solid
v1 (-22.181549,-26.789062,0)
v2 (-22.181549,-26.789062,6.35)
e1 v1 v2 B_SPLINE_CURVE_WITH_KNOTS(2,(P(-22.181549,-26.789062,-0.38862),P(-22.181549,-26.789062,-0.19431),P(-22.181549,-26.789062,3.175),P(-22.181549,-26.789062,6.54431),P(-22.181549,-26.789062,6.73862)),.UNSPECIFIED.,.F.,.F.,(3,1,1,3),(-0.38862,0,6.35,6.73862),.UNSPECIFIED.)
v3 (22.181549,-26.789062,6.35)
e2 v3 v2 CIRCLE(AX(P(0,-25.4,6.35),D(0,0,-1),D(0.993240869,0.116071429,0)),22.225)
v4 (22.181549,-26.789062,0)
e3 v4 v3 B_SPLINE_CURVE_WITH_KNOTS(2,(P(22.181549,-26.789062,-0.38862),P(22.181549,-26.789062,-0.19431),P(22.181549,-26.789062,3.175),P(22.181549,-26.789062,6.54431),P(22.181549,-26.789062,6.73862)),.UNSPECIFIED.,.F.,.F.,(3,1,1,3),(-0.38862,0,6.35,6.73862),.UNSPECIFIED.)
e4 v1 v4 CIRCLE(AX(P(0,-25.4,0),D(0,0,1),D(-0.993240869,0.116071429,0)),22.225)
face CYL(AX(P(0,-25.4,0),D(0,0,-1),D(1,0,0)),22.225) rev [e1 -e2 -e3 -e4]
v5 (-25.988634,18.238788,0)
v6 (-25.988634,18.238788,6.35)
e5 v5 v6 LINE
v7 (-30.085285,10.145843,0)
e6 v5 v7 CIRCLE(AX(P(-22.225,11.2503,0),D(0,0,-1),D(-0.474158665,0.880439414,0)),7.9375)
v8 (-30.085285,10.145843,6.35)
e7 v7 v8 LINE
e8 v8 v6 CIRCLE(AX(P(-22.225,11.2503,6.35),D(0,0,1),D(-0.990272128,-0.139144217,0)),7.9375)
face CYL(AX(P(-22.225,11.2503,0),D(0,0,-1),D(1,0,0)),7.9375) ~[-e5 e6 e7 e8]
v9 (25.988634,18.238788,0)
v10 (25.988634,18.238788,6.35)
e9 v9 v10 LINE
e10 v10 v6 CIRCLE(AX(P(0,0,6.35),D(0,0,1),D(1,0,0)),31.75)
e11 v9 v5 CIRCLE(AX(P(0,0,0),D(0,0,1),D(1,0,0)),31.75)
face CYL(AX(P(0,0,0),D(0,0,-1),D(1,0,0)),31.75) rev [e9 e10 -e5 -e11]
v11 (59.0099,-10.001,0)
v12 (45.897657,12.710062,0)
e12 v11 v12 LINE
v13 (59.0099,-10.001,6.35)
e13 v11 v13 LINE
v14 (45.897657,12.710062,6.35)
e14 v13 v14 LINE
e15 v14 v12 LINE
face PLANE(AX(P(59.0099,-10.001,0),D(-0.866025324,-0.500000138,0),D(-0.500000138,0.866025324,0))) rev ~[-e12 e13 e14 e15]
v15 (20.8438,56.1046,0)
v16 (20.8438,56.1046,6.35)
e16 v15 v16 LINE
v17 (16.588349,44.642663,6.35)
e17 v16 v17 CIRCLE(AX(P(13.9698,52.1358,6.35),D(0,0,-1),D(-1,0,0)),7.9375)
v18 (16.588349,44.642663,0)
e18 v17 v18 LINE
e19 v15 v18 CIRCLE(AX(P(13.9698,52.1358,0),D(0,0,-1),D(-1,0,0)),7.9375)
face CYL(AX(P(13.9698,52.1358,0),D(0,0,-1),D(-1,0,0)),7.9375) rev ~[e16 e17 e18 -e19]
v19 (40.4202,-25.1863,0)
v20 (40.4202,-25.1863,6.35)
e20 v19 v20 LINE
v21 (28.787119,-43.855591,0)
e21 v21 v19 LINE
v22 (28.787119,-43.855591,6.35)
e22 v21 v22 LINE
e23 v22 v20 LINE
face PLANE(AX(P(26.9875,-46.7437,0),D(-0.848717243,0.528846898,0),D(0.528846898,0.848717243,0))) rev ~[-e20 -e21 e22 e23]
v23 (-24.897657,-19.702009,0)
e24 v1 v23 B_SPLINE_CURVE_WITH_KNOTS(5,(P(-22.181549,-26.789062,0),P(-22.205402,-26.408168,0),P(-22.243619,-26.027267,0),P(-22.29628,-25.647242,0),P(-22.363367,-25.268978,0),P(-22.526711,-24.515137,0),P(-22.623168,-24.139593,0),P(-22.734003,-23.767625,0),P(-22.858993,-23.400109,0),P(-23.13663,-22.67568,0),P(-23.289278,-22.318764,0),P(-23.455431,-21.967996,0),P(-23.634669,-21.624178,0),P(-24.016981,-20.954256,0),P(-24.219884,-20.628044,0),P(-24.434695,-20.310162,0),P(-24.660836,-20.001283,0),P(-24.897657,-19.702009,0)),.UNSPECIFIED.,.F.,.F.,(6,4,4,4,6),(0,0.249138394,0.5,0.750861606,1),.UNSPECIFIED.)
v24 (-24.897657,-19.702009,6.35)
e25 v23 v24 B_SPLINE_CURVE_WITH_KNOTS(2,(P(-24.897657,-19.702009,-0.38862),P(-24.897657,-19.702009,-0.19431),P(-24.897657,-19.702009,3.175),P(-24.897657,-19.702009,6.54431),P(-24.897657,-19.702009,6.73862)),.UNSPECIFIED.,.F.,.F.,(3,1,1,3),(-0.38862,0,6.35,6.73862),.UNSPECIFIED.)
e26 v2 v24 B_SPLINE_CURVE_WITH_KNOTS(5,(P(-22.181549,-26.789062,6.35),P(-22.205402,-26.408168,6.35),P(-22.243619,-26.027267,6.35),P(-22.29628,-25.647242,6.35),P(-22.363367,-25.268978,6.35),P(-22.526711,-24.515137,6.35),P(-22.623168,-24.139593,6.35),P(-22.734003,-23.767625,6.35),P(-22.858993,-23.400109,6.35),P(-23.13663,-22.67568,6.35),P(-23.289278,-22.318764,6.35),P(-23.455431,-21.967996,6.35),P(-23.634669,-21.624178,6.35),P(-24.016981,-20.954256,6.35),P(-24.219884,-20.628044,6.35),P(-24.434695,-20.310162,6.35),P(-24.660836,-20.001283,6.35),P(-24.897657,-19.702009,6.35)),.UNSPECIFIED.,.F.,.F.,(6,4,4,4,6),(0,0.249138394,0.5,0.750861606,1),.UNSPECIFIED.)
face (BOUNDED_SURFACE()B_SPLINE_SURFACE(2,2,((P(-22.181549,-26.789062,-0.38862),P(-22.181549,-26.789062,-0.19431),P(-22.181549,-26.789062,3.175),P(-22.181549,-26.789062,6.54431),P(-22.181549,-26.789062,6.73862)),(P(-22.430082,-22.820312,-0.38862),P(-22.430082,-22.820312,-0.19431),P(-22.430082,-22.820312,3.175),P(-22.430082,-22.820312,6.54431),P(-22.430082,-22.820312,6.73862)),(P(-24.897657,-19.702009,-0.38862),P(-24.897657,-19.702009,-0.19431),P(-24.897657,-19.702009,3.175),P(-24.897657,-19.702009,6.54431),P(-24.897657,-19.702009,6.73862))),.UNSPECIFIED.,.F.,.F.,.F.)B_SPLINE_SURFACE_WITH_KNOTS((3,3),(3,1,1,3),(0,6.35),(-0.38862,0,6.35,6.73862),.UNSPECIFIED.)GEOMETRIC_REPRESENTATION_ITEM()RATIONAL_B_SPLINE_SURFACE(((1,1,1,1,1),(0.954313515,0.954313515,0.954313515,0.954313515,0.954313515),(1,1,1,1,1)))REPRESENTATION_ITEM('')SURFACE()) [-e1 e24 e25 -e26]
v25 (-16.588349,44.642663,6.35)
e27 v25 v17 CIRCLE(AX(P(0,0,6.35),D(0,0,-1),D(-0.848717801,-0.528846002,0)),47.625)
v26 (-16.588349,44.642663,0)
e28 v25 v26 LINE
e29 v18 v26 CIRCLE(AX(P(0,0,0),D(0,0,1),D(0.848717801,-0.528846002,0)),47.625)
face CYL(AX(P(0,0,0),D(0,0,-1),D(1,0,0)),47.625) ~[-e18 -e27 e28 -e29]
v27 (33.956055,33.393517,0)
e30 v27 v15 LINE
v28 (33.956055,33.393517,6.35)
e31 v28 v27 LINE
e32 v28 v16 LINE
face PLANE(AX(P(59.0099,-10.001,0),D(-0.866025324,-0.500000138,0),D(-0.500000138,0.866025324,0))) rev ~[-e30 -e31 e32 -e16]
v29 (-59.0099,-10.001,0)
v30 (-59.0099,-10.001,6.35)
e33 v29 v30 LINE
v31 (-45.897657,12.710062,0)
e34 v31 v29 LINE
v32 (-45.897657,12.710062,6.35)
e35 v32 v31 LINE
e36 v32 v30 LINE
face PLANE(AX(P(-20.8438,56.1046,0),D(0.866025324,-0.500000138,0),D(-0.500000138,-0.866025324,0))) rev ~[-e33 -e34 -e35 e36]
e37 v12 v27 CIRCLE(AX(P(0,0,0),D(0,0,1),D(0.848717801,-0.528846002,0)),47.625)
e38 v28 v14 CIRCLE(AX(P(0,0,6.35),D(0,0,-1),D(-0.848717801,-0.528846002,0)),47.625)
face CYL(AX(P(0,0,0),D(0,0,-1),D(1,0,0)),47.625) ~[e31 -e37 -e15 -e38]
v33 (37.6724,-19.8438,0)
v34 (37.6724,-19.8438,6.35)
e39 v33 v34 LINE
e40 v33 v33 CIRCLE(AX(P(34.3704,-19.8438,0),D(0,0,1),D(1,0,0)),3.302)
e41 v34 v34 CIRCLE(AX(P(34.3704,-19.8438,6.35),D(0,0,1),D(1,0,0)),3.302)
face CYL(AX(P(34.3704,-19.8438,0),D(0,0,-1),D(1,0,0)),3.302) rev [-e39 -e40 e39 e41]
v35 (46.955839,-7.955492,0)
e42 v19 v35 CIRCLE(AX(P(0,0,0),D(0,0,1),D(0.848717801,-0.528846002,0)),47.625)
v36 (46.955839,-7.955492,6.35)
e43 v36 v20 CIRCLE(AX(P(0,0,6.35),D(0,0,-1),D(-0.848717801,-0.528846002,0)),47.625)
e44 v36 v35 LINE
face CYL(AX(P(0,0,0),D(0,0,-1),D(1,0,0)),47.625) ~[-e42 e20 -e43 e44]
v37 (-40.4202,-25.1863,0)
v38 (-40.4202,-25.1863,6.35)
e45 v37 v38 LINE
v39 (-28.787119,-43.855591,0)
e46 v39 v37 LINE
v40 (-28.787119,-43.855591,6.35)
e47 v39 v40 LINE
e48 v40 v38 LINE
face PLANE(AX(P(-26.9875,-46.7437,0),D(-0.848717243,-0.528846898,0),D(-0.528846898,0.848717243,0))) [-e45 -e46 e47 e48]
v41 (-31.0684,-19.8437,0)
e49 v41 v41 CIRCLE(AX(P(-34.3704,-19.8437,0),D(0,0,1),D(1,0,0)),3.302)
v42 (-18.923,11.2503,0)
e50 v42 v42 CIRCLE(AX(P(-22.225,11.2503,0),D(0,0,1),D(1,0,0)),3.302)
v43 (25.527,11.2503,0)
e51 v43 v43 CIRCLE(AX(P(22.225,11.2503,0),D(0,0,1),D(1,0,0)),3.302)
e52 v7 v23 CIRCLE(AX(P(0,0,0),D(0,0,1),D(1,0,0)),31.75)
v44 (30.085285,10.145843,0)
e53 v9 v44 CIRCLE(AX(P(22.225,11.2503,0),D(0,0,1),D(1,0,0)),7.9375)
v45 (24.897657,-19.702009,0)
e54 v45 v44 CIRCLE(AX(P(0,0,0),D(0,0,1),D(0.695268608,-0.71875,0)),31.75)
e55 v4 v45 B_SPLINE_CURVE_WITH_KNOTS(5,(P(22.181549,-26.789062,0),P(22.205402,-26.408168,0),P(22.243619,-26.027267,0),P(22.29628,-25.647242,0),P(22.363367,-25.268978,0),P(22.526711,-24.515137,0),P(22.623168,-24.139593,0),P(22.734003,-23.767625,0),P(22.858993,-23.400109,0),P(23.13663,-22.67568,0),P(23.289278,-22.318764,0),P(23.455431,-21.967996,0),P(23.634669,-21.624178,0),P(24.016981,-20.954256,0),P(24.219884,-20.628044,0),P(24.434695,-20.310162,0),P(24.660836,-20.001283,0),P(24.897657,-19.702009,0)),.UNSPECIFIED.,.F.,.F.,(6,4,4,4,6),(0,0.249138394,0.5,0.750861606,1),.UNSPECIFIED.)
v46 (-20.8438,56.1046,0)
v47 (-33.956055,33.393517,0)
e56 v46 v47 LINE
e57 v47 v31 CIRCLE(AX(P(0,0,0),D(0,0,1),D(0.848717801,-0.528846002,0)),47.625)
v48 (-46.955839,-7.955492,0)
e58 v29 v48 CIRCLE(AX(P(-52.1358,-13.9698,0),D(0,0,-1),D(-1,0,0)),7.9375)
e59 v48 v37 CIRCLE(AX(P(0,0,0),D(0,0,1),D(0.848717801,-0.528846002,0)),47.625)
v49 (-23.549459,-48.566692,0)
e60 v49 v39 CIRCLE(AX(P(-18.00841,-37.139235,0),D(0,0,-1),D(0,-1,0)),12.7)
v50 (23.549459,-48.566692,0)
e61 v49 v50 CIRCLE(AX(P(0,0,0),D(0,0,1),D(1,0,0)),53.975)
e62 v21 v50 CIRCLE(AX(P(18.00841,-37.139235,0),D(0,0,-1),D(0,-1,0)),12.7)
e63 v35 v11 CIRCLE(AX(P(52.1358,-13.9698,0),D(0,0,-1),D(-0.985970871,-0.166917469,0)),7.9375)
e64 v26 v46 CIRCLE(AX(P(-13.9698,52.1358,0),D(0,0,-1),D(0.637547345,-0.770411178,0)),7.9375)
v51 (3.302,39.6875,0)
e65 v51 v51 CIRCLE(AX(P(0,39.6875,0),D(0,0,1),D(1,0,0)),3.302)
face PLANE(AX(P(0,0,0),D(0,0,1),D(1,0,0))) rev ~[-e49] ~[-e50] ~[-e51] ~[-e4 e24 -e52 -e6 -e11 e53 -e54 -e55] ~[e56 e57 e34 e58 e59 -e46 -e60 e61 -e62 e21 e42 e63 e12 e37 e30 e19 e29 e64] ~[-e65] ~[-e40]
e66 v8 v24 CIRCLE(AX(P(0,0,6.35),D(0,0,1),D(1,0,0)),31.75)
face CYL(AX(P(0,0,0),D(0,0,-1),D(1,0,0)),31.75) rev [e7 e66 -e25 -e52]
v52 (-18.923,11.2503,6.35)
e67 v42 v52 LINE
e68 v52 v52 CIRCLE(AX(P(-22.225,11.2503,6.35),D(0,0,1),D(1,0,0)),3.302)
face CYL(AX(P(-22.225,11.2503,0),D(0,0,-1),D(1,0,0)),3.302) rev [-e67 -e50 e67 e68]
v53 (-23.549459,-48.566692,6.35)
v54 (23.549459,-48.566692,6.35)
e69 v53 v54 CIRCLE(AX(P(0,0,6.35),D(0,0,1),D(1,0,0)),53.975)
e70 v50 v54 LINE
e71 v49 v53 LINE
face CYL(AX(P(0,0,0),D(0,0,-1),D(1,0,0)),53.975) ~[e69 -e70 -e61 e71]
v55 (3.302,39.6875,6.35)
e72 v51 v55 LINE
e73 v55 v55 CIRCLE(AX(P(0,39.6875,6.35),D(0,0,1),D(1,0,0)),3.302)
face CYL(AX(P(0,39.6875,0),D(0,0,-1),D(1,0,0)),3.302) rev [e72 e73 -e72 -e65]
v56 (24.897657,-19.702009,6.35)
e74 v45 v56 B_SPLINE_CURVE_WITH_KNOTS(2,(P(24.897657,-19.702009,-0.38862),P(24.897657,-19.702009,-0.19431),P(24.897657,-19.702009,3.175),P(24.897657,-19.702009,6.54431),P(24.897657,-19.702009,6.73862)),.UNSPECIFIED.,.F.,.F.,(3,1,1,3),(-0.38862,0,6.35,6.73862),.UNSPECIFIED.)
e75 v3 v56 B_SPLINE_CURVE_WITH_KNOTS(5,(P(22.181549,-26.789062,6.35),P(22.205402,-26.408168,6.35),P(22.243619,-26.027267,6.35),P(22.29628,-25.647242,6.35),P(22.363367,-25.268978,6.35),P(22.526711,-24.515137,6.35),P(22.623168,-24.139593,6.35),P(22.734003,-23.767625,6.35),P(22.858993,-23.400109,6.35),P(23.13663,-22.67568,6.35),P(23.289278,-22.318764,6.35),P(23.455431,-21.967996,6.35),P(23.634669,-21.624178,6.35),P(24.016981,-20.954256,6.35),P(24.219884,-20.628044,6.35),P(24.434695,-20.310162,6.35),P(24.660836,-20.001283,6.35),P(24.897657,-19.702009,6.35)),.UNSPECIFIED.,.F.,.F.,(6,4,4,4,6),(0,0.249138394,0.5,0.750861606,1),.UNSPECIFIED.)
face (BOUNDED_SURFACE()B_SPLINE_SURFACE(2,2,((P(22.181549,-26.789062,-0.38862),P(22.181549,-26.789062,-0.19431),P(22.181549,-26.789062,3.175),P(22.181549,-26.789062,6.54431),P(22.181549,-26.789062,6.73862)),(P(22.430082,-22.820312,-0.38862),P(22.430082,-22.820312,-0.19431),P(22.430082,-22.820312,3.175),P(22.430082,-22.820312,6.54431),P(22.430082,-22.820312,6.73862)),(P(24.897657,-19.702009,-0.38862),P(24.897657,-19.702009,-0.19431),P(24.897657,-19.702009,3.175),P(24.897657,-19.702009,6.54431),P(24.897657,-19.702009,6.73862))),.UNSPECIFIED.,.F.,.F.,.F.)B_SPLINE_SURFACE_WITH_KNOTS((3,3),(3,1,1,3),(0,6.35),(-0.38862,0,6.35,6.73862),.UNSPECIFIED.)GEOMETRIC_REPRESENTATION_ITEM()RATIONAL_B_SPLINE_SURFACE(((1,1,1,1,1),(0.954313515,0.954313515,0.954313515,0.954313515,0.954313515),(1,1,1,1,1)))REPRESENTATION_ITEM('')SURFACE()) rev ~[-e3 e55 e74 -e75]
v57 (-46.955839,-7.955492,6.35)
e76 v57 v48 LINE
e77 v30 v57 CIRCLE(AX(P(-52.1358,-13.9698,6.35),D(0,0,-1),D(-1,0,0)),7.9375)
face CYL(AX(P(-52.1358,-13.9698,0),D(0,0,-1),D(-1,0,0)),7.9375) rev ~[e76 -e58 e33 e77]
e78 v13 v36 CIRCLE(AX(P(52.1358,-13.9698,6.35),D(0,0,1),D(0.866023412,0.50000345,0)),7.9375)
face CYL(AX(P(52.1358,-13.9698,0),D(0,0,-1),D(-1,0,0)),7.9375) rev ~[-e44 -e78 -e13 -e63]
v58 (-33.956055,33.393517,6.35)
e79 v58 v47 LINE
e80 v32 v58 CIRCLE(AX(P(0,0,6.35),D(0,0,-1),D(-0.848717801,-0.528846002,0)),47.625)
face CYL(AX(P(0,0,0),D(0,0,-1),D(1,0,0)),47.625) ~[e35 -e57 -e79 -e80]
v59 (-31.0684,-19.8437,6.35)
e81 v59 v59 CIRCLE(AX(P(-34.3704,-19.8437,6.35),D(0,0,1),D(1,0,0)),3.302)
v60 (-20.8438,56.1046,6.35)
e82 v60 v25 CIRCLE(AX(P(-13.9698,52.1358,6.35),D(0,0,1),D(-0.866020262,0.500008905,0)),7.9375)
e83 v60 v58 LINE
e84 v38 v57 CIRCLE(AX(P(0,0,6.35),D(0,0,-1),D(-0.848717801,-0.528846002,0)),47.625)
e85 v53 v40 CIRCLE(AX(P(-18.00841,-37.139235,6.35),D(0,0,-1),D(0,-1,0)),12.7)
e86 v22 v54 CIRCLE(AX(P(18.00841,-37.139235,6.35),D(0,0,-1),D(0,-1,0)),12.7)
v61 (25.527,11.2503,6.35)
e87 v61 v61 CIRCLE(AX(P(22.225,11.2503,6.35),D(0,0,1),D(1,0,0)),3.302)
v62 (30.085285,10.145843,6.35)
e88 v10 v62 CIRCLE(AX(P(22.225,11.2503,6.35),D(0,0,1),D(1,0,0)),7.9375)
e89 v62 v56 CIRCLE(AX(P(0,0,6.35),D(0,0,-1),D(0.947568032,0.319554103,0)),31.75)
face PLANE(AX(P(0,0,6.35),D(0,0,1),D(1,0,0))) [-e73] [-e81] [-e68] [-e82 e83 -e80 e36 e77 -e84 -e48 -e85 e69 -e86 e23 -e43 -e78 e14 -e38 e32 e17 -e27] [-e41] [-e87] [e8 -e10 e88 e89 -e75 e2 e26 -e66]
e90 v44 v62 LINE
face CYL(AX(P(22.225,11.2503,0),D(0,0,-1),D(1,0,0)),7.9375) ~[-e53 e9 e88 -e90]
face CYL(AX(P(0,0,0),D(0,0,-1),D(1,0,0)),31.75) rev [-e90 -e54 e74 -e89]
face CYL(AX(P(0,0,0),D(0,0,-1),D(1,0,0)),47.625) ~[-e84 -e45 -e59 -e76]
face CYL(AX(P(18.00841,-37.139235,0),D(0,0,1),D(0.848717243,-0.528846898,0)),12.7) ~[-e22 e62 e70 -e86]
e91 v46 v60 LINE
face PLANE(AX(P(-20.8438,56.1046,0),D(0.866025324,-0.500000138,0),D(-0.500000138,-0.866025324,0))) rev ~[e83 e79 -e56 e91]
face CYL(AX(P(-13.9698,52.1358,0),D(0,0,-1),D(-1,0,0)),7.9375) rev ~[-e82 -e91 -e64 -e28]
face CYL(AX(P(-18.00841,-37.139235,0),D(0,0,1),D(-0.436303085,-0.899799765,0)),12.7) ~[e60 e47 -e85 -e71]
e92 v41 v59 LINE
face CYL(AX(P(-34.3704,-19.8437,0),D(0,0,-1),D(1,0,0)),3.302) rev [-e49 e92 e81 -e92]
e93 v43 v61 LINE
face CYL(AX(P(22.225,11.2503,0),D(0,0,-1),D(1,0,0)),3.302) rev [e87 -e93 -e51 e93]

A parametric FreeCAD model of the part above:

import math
import FreeCAD as App
import Part
import Sketcher
from FreeCAD import Vector
Q = App.Units.Quantity


def edges_at(feature, points):
    """Names of the edges that pass closest to the given points."""
    edges = feature.Shape.Edges
    near = lambda p: min(range(len(edges)), key=lambda i: edges[i].distToShape(Part.Vertex(*p))[0])
    return sorted({f"Edge{near(p) + 1}" for p in points})

doc = App.newDocument("Part")
body = doc.addObject("PartDesign::Body", "Body")

# Sketch on XY plane
sketch1 = body.newObject("Sketcher::SketchObject", "Sketch")
sketch1.AttachmentSupport = (doc.getObject("XY_Plane"), [""])
sketch1.MapMode = "FlatFace"
sketch1.addGeometry([
    Part.ArcOfCircle(Part.Circle(Vector(0, 0, 0), Vector(0, 0, 1), 47.6), math.radians(-32), math.radians(212)),  # 0
    Part.LineSegment(Vector(-40.4, -25.2, 0), Vector(-27, -46.7, 0)),  # 1
    Part.ArcOfCircle(Part.Circle(Vector(0, 0, 0), Vector(0, 0, 1), 54), math.radians(-120), math.radians(-60)),  # 2
    Part.LineSegment(Vector(27, -46.7, 0), Vector(40.4, -25.2, 0)),  # 3
    Part.ArcOfCircle(Part.Circle(Vector(0, 0, 0), Vector(0, 0, 1), 31.8), math.radians(161), math.radians(226)),  # 4
    Part.ArcOfCircle(Part.Circle(Vector(-22.2, 11.3, 0), Vector(0, 0, 1), 7.9), math.radians(-172), math.radians(118)),  # 5
    Part.ArcOfCircle(Part.Circle(Vector(0, 0, 0), Vector(0, 0, 1), 31.8), math.radians(35), math.radians(145)),  # 6
    Part.ArcOfCircle(Part.Circle(Vector(22.2, 11.3, 0), Vector(0, 0, 1), 7.9), math.radians(62), math.radians(352)),  # 7
    Part.ArcOfCircle(Part.Circle(Vector(0, 0, 0), Vector(0, 0, 1), 31.8), math.radians(-46), math.radians(19)),  # 8
    Part.ArcOfCircle(Part.Circle(Vector(0, -25.4, 0), Vector(0, 0, 1), 22.2), math.radians(173), math.radians(367)),  # 9
    Part.Circle(Vector(-34.4, -19.8, 0), Vector(0, 0, 1), 3.3),  # 10
    Part.Circle(Vector(34.4, -19.8, 0), Vector(0, 0, 1), 3.3),  # 11
    Part.Circle(Vector(0, 39.7, 0), Vector(0, 0, 1), 3.3),  # 12
    Part.Circle(Vector(22.2, 11.3, 0), Vector(0, 0, 1), 3.3),  # 13
    Part.Circle(Vector(-22.2, 11.3, 0), Vector(0, 0, 1), 3.3),  # 14
], False)
sketch1.addConstraint([
    Sketcher.Constraint("Tangent", 0, 2, 1, 1),
    Sketcher.Constraint("Coincident", 1, 2, 2, 1),
    Sketcher.Constraint("Coincident", 2, 2, 3, 1),
    Sketcher.Constraint("Tangent", 3, 2, 0, 1),
    Sketcher.Constraint("Coincident", 4, 1, 5, 1),
    Sketcher.Constraint("Coincident", 5, 2, 6, 2),
    Sketcher.Constraint("Coincident", 6, 1, 7, 1),
    Sketcher.Constraint("Coincident", 7, 2, 8, 2),
    Sketcher.Constraint("Coincident", 8, 1, 9, 2),
    Sketcher.Constraint("Coincident", 9, 1, 4, 2),
    Sketcher.Constraint("Coincident", 0, 3, -1, 1),
    Sketcher.Constraint("Coincident", 2, 3, -1, 1),
    Sketcher.Constraint("Coincident", 4, 3, -1, 1),
    Sketcher.Constraint("Coincident", 6, 3, -1, 1),
    Sketcher.Constraint("Coincident", 8, 3, -1, 1),
    Sketcher.Constraint("Coincident", 13, 3, 7, 3),
    Sketcher.Constraint("Coincident", 14, 3, 5, 3),
    Sketcher.Constraint("Equal", 4, 6),
    Sketcher.Constraint("Equal", 5, 7),
    Sketcher.Constraint("Equal", 6, 8),
    Sketcher.Constraint("Equal", 10, 11),
    Sketcher.Constraint("Equal", 11, 12),
    Sketcher.Constraint("Equal", 12, 13),
    Sketcher.Constraint("Equal", 13, 14),
    Sketcher.Constraint("Symmetric", 5, 3, 7, 3, -2),
    Sketcher.Constraint("Symmetric", 10, 3, 11, 3, -2),
    Sketcher.Constraint("PointOnObject", 9, 3, -2),
    Sketcher.Constraint("PointOnObject", 12, 3, -2),
    Sketcher.Constraint("Horizontal", 1, 2, 2, 2),
    Sketcher.Constraint("Diameter", 10, Q("0.26 in")),
    Sketcher.Constraint("Radius", 4, Q("1.25 in")),
    Sketcher.Constraint("Radius", 0, Q("1.875 in")),
    Sketcher.Constraint("Radius", 2, Q("2.125 in")),
    Sketcher.Constraint("Radius", 5, Q("0.3125 in")),
    Sketcher.Constraint("Radius", 9, Q("0.875 in")),
    Sketcher.Constraint("DistanceX", 5, 3, 7, 3, Q("1.75 in")),
    Sketcher.Constraint("DistanceY", 9, 3, -1, 1, Q("1 in")),
    Sketcher.Constraint("DistanceY", 10, 3, -1, 1, Q("0.781248 in")),
    Sketcher.Constraint("DistanceY", -1, 1, 12, 3, Q("1.5625 in")),
    Sketcher.Constraint("DistanceX", 1, 2, -1, 1, Q("1.0625 in")),
    Sketcher.Constraint("DistanceY", 0, 2, 5, 3, Q("1.4345 in")),
    Sketcher.Constraint("DistanceX", 10, 3, 4, 1, Q("0.1687 in")),
])
pad1 = body.newObject("PartDesign::Pad", "Pad")
pad1.Profile = sketch1
pad1.Length = Q("0.25 in")
doc.recompute()

fillet = body.newObject("PartDesign::Fillet", "Fillet")
fillet.Base = (pad1, edges_at(pad1, [
    (-22.075, -22.82, 3.175),
    (22.075, -22.82, 3.175),
    (26.988, -46.744, 3.175),
    (-26.988, -46.744, 3.175),
]))
fillet.Radius = Q("0.5 in")

# Sketch on XY plane
sketch2 = body.newObject("Sketcher::SketchObject", "Sketch001")
sketch2.AttachmentSupport = (doc.getObject("XY_Plane"), [""])
sketch2.MapMode = "FlatFace"
sketch2.addGeometry([
    Part.Circle(Vector(38.2, -38.2, 0), Vector(0, 0, 1), 3.3),  # 0
    Part.Circle(Vector(52.1, -14, 0), Vector(0, 0, 1), 3.3),  # 1
    Part.Circle(Vector(14, 52.1, 0), Vector(0, 0, 1), 3.3),  # 2
    Part.Circle(Vector(-14, 52.1, 0), Vector(0, 0, 1), 3.3),  # 3
    Part.Circle(Vector(-52.1, -14, 0), Vector(0, 0, 1), 3.3),  # 4
    Part.Circle(Vector(-38.2, -38.2, 0), Vector(0, 0, 1), 3.3),  # 5
], False)
sketch2.addConstraint([
    Sketcher.Constraint("Equal", 0, 1),
    Sketcher.Constraint("Equal", 1, 2),
    Sketcher.Constraint("Equal", 2, 3),
    Sketcher.Constraint("Equal", 3, 4),
    Sketcher.Constraint("Equal", 4, 5),
    Sketcher.Constraint("Symmetric", 2, 3, 3, 3, -2),
    Sketcher.Constraint("Symmetric", 1, 3, 4, 3, -2),
    Sketcher.Constraint("Symmetric", 0, 3, 5, 3, -2),
    Sketcher.Constraint("Diameter", 0, Q("0.26 in")),
    Sketcher.Constraint("DistanceY", 1, 3, -1, 1, Q("0.55 in")),
    Sketcher.Constraint("DistanceX", -1, 1, 2, 3, Q("0.55 in")),
    Sketcher.Constraint("DistanceX", 0, 3, 1, 3, Q("0.55 in")),
    Sketcher.Constraint("DistanceX", -1, 1, 0, 3, Q("1.5026 in")),
    Sketcher.Constraint("DistanceY", 0, 3, -1, 1, Q("1.5026 in")),
    Sketcher.Constraint("DistanceY", -1, 1, 2, 3, Q("2.0526 in")),
])
doc.recompute()
hole = body.newObject("PartDesign::Hole", "Hole")
hole.Profile = sketch2
hole.ThreadType = "None"
hole.Diameter = Q("0.26 in")
hole.DepthType = "ThroughAll"
hole.Reversed = True

# Sketch on XY plane
sketch3 = body.newObject("Sketcher::SketchObject", "Sketch002")
sketch3.AttachmentSupport = (doc.getObject("XY_Plane"), [""])
sketch3.MapMode = "FlatFace"
sketch3.addGeometry([
    Part.ArcOfCircle(Part.Circle(Vector(-14, 52, 0), Vector(0, 0, 1), 8), math.radians(150), math.radians(310)),  # 0
    Part.ArcOfCircle(Part.Circle(Vector(56, -32, 0), Vector(0, 0, 1), 102), math.radians(130), math.radians(170)),  # 1
    Part.ArcOfCircle(Part.Circle(Vector(-52, -14, 0), Vector(0, 0, 1), 8), math.radians(-10), math.radians(150)),  # 2
    Part.LineSegment(Vector(-59, -10, 0), Vector(-21, 56, 0)),  # 3
    Part.ArcOfCircle(Part.Circle(Vector(14, 52, 0), Vector(0, 0, 1), 8), math.radians(-130), math.radians(30)),  # 4
    Part.LineSegment(Vector(21, 56, 0), Vector(59, -10, 0)),  # 5
    Part.ArcOfCircle(Part.Circle(Vector(52, -14, 0), Vector(0, 0, 1), 8), math.radians(30), math.radians(190)),  # 6
    Part.ArcOfCircle(Part.Circle(Vector(-56, -32, 0), Vector(0, 0, 1), 102), math.radians(10), math.radians(50)),  # 7
], False)
sketch3.addConstraint([
    Sketcher.Constraint("Tangent", 0, 2, 1, 1),
    Sketcher.Constraint("Tangent", 1, 2, 2, 1),
    Sketcher.Constraint("Tangent", 2, 2, 3, 1),
    Sketcher.Constraint("Tangent", 3, 2, 0, 1),
    Sketcher.Constraint("Tangent", 4, 2, 5, 1),
    Sketcher.Constraint("Tangent", 5, 2, 6, 1),
    Sketcher.Constraint("Tangent", 6, 2, 7, 1),
    Sketcher.Constraint("Tangent", 7, 2, 4, 1),
    Sketcher.Constraint("Equal", 0, 2),
    Sketcher.Constraint("Equal", 2, 4),
    Sketcher.Constraint("Equal", 4, 6),
    Sketcher.Constraint("Equal", 1, 7),
    Sketcher.Constraint("Symmetric", 0, 3, 4, 3, -2),
    Sketcher.Constraint("Symmetric", 2, 3, 6, 3, -2),
    Sketcher.Constraint("Radius", 1, Q("4 in")),
    Sketcher.Constraint("Radius", 0, Q("0.3125 in")),
    Sketcher.Constraint("Angle", 3, Q("60 deg")),
    Sketcher.Constraint("DistanceX", 0, 3, -1, 1, Q("0.55 in")),
    Sketcher.Constraint("DistanceY", 2, 3, -1, 1, Q("0.55 in")),
    Sketcher.Constraint("DistanceX", 2, 3, 1, 3, Q("4.252 in")),
])
pad2 = body.newObject("PartDesign::Pad", "Pad001")
pad2.Profile = sketch3
pad2.Length = Q("0.25 in")

doc.recompute()
